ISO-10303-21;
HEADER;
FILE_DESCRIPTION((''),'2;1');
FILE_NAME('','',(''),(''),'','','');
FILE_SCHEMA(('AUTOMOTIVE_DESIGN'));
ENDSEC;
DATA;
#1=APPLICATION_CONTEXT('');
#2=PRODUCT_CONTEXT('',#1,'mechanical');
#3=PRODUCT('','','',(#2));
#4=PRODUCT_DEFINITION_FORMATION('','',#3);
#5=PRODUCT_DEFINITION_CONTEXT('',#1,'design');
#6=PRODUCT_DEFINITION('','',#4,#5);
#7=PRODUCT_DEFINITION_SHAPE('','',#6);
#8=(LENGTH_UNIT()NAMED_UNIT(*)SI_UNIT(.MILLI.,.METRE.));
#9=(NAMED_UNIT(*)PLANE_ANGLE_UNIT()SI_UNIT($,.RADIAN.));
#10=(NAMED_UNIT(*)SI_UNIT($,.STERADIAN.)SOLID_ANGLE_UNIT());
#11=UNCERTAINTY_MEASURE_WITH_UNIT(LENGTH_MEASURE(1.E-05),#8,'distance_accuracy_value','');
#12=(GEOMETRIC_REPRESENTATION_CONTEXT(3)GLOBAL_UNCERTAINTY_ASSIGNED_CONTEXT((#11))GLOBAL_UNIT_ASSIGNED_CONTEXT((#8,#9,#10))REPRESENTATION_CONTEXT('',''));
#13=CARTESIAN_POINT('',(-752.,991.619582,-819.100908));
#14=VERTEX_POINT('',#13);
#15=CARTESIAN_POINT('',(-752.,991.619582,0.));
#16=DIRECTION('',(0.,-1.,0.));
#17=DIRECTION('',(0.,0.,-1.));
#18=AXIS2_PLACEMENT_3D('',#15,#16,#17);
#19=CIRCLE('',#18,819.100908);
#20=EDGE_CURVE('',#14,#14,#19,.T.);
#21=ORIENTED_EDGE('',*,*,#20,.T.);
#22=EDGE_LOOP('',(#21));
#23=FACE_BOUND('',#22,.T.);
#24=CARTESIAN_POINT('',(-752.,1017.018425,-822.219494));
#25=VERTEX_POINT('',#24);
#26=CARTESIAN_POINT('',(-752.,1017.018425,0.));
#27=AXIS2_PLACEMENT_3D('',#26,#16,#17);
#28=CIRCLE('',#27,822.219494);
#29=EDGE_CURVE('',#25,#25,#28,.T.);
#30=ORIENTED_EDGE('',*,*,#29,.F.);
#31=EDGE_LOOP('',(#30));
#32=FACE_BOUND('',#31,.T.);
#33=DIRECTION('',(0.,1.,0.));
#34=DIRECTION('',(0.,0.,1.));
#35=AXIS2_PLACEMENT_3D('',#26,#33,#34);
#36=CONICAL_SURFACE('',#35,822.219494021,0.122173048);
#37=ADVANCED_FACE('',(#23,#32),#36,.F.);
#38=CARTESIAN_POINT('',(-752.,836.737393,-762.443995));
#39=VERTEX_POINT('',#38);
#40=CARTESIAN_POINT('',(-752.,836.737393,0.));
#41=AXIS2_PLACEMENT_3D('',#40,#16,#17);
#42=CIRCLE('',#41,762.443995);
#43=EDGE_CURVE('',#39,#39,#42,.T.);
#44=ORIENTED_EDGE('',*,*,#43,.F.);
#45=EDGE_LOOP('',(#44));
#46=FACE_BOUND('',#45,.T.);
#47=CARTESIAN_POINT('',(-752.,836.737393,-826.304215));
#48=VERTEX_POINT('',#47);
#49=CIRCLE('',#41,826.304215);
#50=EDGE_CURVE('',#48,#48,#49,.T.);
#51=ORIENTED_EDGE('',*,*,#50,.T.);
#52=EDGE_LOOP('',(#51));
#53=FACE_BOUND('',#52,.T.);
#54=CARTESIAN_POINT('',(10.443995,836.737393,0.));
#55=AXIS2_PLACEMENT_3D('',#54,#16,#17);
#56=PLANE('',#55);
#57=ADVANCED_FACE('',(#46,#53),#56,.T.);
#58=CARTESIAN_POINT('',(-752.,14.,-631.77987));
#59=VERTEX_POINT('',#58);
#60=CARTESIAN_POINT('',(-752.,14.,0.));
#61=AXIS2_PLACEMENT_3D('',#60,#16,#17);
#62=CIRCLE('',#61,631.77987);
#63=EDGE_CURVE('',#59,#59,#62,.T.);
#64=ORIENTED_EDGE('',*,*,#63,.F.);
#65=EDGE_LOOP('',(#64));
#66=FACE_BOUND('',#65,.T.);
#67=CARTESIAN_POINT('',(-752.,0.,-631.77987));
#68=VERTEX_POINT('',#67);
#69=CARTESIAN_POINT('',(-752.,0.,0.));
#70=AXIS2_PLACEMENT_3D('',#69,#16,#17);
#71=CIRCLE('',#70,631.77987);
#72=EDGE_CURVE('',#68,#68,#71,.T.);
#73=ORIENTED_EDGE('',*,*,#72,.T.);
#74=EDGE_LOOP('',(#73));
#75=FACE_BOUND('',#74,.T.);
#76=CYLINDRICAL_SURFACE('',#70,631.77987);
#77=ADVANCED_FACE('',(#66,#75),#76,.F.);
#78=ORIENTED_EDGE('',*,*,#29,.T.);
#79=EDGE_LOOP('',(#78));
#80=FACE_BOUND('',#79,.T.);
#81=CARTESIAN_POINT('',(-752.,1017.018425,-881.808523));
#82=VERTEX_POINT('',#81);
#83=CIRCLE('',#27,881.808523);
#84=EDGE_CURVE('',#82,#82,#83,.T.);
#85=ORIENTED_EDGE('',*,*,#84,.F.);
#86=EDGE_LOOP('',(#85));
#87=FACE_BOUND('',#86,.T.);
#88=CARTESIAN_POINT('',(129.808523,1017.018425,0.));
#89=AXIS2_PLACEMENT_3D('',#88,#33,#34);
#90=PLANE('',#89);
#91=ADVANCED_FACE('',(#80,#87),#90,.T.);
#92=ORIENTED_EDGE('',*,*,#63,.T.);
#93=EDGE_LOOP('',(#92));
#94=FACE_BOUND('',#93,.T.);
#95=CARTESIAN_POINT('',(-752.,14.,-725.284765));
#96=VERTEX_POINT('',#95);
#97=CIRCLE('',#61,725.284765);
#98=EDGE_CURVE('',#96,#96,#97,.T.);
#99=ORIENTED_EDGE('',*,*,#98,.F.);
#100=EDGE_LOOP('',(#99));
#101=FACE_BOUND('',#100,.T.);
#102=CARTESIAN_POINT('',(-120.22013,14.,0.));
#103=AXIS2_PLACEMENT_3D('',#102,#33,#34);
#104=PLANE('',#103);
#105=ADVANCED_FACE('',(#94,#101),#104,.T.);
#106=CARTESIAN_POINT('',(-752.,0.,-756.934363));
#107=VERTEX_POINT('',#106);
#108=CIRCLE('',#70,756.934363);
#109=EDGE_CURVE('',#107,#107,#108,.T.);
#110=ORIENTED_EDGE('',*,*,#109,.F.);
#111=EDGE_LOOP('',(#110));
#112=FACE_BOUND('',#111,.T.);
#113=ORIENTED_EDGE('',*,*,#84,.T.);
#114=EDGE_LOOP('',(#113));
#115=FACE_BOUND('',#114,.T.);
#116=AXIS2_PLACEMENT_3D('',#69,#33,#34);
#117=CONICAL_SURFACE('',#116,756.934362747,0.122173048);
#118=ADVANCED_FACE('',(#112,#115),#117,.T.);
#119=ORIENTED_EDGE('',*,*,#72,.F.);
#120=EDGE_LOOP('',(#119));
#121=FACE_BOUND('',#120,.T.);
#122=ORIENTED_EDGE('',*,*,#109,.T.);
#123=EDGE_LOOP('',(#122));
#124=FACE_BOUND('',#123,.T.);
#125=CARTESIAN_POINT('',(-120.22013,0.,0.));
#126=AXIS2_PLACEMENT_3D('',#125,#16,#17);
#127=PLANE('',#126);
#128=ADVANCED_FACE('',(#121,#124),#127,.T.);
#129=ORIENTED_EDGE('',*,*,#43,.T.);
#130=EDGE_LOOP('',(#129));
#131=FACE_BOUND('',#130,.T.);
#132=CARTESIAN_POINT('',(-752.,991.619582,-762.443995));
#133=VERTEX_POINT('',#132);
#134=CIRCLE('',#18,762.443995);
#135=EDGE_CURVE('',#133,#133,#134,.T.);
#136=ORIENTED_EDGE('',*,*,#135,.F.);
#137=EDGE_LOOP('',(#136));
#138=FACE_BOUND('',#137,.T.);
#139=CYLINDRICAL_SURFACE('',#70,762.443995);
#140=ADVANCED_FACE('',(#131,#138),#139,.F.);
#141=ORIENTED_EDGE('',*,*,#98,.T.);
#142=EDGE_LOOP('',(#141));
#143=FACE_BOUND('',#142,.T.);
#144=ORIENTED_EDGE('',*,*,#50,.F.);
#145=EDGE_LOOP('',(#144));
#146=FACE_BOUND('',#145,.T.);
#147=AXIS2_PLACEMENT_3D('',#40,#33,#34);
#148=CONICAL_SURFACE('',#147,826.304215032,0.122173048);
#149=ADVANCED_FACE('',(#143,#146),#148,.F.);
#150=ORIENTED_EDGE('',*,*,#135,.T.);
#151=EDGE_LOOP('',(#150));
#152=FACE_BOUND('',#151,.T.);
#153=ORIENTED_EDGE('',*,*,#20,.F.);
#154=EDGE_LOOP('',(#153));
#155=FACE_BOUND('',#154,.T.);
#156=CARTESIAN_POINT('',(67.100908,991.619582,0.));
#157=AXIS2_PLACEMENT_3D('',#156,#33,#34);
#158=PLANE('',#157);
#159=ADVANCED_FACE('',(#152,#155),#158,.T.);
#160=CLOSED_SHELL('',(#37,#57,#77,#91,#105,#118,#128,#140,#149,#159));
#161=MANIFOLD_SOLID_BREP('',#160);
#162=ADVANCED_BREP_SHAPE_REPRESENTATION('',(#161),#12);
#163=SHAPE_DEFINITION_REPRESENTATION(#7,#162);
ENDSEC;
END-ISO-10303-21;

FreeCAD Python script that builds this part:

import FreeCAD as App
import Part
import Sketcher

V = App.Vector
Q = App.Units.Quantity


def add_polygon(sketch, points):
    """Adds a closed chain of lines whose ends are joined by coincident constraints."""
    first, n = sketch.GeometryCount, len(points)
    for a, b in zip(points, points[1:] + points[:1]):
        sketch.addGeometry(Part.LineSegment(App.Vector(*a, 0), App.Vector(*b, 0)), False)
    for i in range(n):
        sketch.addConstraint(Sketcher.Constraint("Coincident", first + i, 2, first + (i + 1) % n, 1))

doc = App.newDocument("Part")
body = doc.addObject("PartDesign::Body", "Body")

# Sketch on XY plane
sketch1 = doc.addObject("Sketcher::SketchObject", "Sketch")
body.addObject(sketch1)
sketch1.AttachmentSupport = (doc.XY_Plane, [""])
sketch1.MapMode = "FlatFace"
add_polygon(sketch1, [(-120, 0), (5, 0), (130, 1017), (70, 1017), (67, 992), (10, 992), (10, 837), (74, 837), (-27, 14), (-120, 14)])  # lines 0-9
sketch1.addGeometry(Part.LineSegment(V(-752, 0, 0), V(-752, 1017, 0)), True)  # axis
sketch1.addConstraint([
    Sketcher.Constraint("Horizontal", 0),
    Sketcher.Constraint("Horizontal", 2),
    Sketcher.Constraint("Horizontal", 4),
    Sketcher.Constraint("Vertical", 5),
    Sketcher.Constraint("Horizontal", 6),
    Sketcher.Constraint("Horizontal", 8),
    Sketcher.Constraint("Vertical", 9),
    Sketcher.Constraint("Vertical", 10),
    Sketcher.Constraint("PointOnObject", 0, 2, -1),
    Sketcher.Constraint("PointOnObject", 10, 1, -1),
    Sketcher.Constraint("Parallel", 1, 3),
    Sketcher.Constraint("Parallel", 3, 7),
    Sketcher.Constraint("Horizontal", 2, 2, 10, 2),
    Sketcher.Constraint("DistanceY", 9, 2, 9, 1, 14.0),
    Sketcher.Constraint("Angle", 1, Q("83 deg")),
    Sketcher.Constraint("DistanceX", 10, 1, -1, 1, 752.0),
    Sketcher.Constraint("DistanceX", 2, 2, 2, 1, 59.589029),
    Sketcher.Constraint("DistanceX", 6, 1, 6, 2, 63.86022),
    Sketcher.Constraint("DistanceY", 5, 2, 5, 1, 154.882189),
    Sketcher.Constraint("DistanceX", 4, 2, 2, 2, 59.775499),
    Sketcher.Constraint("DistanceX", 0, 1, 0, 2, 125.154493),
    Sketcher.Constraint("DistanceX", 4, 2, 4, 1, 56.656913),
    Sketcher.Constraint("DistanceY", 10, 1, 10, 2, 1017.018425),
    Sketcher.Constraint("DistanceX", -1, 1, 3, 2, 67.100908),
])
revolution = doc.addObject("PartDesign::Revolution", "Revolution")
body.addObject(revolution)
revolution.Profile = sketch1
revolution.ReferenceAxis = (sketch1, ["Axis0"])
revolution.Angle = 360

doc.recompute()
